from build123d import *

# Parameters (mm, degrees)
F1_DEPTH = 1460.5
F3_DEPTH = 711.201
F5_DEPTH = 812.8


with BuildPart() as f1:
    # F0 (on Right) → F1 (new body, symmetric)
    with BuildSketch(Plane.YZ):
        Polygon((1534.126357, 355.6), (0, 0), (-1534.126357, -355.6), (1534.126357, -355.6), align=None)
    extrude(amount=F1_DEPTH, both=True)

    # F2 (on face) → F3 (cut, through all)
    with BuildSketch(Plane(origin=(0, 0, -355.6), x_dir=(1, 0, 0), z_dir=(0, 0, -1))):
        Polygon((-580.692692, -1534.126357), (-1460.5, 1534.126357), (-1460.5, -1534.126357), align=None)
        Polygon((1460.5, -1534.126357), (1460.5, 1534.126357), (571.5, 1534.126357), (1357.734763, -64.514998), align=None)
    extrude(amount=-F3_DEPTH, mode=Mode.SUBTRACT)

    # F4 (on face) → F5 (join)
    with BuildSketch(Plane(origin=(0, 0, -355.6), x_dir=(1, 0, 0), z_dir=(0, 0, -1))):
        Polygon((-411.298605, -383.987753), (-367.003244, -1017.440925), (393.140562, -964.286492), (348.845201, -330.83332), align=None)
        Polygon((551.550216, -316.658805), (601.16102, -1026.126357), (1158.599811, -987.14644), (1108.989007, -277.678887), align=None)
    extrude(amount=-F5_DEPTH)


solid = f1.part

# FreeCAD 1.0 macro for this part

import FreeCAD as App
import Part
import Sketcher

V = App.Vector
Q = App.Units.Quantity

doc = App.newDocument("Part")
body = doc.addObject("PartDesign::Body", "Body")

# Sketch on YZ plane
sketch1 = body.newObject("Sketcher::SketchObject", "Sketch")
sketch1.AttachmentSupport = (doc.getObject("YZ_Plane"), [""])
sketch1.MapMode = "FlatFace"
sketch1.addGeometry(Part.LineSegment(V(1534, 356, 0), V(-1534, -356, 0)), False)
sketch1.addGeometry(Part.LineSegment(V(-1534, -356, 0), V(1534, -356, 0)), False)
sketch1.addGeometry(Part.LineSegment(V(1534, -356, 0), V(1534, 356, 0)), False)
sketch1.addConstraint(Sketcher.Constraint("Coincident", 0, 2, 1, 1))
sketch1.addConstraint(Sketcher.Constraint("Coincident", 1, 2, 2, 1))
sketch1.addConstraint(Sketcher.Constraint("Coincident", 2, 2, 0, 1))
sketch1.addConstraint(Sketcher.Constraint("Horizontal", 1))
sketch1.addConstraint(Sketcher.Constraint("Vertical", 2))
sketch1.addConstraint(Sketcher.Constraint("Symmetric", 0, 2, 2, 2, -1, 1))
sketch1.addConstraint(Sketcher.Constraint("DistanceY", 2, 1, 2, 2, Q("28 in")))
sketch1.addConstraint(Sketcher.Constraint("Distance", 0, Q("124 in")))
pad1 = body.newObject("PartDesign::Pad", "Pad")
pad1.Profile = sketch1
pad1.Length = Q("115 in")
pad1.Midplane = True

# Sketch on XY plane
sketch2 = body.newObject("Sketcher::SketchObject", "Sketch001")
sketch2.AttachmentSupport = (doc.getObject("XY_Plane"), [""])
sketch2.MapMode = "FlatFace"
sketch2.AttachmentOffset = App.Placement(V(0, 0, -14 * 25.4), App.Rotation())
sketch2.addGeometry(Part.LineSegment(V(-581, 1534, 0), V(-1460, -1534, 0)), False)
sketch2.addGeometry(Part.LineSegment(V(-1460, -1534, 0), V(-1460, 1534, 0)), False)
sketch2.addGeometry(Part.LineSegment(V(-1460, 1534, 0), V(-581, 1534, 0)), False)
sketch2.addGeometry(Part.LineSegment(V(1460, 1534, 0), V(1460, -1534, 0)), False)
sketch2.addGeometry(Part.LineSegment(V(1460, -1534, 0), V(572, -1534, 0)), False)
sketch2.addGeometry(Part.LineSegment(V(572, -1534, 0), V(1358, 65, 0)), False)
sketch2.addGeometry(Part.LineSegment(V(1358, 65, 0), V(1460, 1534, 0)), False)
sketch2.addConstraint(Sketcher.Constraint("Coincident", 0, 2, 1, 1))
sketch2.addConstraint(Sketcher.Constraint("Coincident", 1, 2, 2, 1))
sketch2.addConstraint(Sketcher.Constraint("Coincident", 2, 2, 0, 1))
sketch2.addConstraint(Sketcher.Constraint("Coincident", 3, 2, 4, 1))
sketch2.addConstraint(Sketcher.Constraint("Coincident", 4, 2, 5, 1))
sketch2.addConstraint(Sketcher.Constraint("Coincident", 5, 2, 6, 1))
sketch2.addConstraint(Sketcher.Constraint("Coincident", 6, 2, 3, 1))
sketch2.addConstraint(Sketcher.Constraint("Vertical", 1))
sketch2.addConstraint(Sketcher.Constraint("Horizontal", 2))
sketch2.addConstraint(Sketcher.Constraint("Vertical", 3))
sketch2.addConstraint(Sketcher.Constraint("Horizontal", 4))
sketch2.addConstraint(Sketcher.Constraint("Symmetric", 1, 2, 3, 2, -1, 1))
sketch2.addConstraint(Sketcher.Constraint("Horizontal", 0, 2, 3, 2))
sketch2.addConstraint(Sketcher.Constraint("Horizontal", 2, 2, 6, 2))
sketch2.addConstraint(Sketcher.Constraint("DistanceX", 4, 2, 4, 1, Q("35 in")))
sketch2.addConstraint(Sketcher.Constraint("Distance", 6, Q("58 in")))
sketch2.addConstraint(Sketcher.Constraint("Angle", 0, Q("-106 deg")))
sketch2.addConstraint(Sketcher.Constraint("Angle", 6, Q("86 deg")))
sketch2.addConstraint(Sketcher.Constraint("DistanceX", 0, 2, 3, 2, Q("115 in")))
sketch2.addConstraint(Sketcher.Constraint("DistanceX", 2, 1, 2, 2, 879.807308))
pocket1 = body.newObject("PartDesign::Pocket", "Pocket")
pocket1.Profile = sketch2
pocket1.Type = "ThroughAll"
pocket1.Reversed = True

# Sketch on XY plane
sketch3 = body.newObject("Sketcher::SketchObject", "Sketch002")
sketch3.AttachmentSupport = (doc.getObject("XY_Plane"), [""])
sketch3.MapMode = "FlatFace"
sketch3.AttachmentOffset = App.Placement(V(0, 0, -14 * 25.4), App.Rotation())
sketch3.addGeometry(Part.LineSegment(V(-411, 384, 0), V(-367, 1017, 0)), False)
sketch3.addGeometry(Part.LineSegment(V(-367, 1017, 0), V(393, 964, 0)), False)
sketch3.addGeometry(Part.LineSegment(V(393, 964, 0), V(349, 331, 0)), False)
sketch3.addGeometry(Part.LineSegment(V(349, 331, 0), V(-411, 384, 0)), False)
sketch3.addGeometry(Part.LineSegment(V(552, 317, 0), V(601, 1026, 0)), False)
sketch3.addGeometry(Part.LineSegment(V(601, 1026, 0), V(1159, 987, 0)), False)
sketch3.addGeometry(Part.LineSegment(V(1159, 987, 0), V(1109, 278, 0)), False)
sketch3.addGeometry(Part.LineSegment(V(1109, 278, 0), V(552, 317, 0)), False)
sketch3.addConstraint(Sketcher.Constraint("Coincident", 0, 2, 1, 1))
sketch3.addConstraint(Sketcher.Constraint("Coincident", 1, 2, 2, 1))
sketch3.addConstraint(Sketcher.Constraint("Coincident", 2, 2, 3, 1))
sketch3.addConstraint(Sketcher.Constraint("Coincident", 3, 2, 0, 1))
sketch3.addConstraint(Sketcher.Constraint("Coincident", 4, 2, 5, 1))
sketch3.addConstraint(Sketcher.Constraint("Coincident", 5, 2, 6, 1))
sketch3.addConstraint(Sketcher.Constraint("Coincident", 6, 2, 7, 1))
sketch3.addConstraint(Sketcher.Constraint("Coincident", 7, 2, 4, 1))
sketch3.addConstraint(Sketcher.Constraint("Perpendicular", 0, 1))
sketch3.addConstraint(Sketcher.Constraint("Perpendicular", 1, 2))
sketch3.addConstraint(Sketcher.Constraint("Perpendicular", 2, 3))
sketch3.addConstraint(Sketcher.Constraint("Perpendicular", 3, 4))
sketch3.addConstraint(Sketcher.Constraint("Perpendicular", 4, 5))
sketch3.addConstraint(Sketcher.Constraint("Perpendicular", 5, 6))
sketch3.addConstraint(Sketcher.Constraint("Perpendicular", 6, 7))
sketch3.addConstraint(Sketcher.Constraint("Distance", 0, Q("25 in")))
sketch3.addConstraint(Sketcher.Constraint("Distance", 1, Q("30 in")))
sketch3.addConstraint(Sketcher.Constraint("Distance", 4, Q("28 in")))
sketch3.addConstraint(Sketcher.Constraint("Distance", 5, Q("22 in")))
sketch3.addConstraint(Sketcher.Constraint("Angle", 0, Q("86 deg")))
sketch3.addConstraint(Sketcher.Constraint("DistanceX", -1, 1, 2, 2, 348.845201))
sketch3.addConstraint(Sketcher.Constraint("DistanceY", -1, 1, 1, 2, 964.286492))
sketch3.addConstraint(Sketcher.Constraint("DistanceX", -1, 1, 4, 2, 601.16102))
sketch3.addConstraint(Sketcher.Constraint("DistanceY", -1, 1, 5, 2, 987.14644))
pad2 = body.newObject("PartDesign::Pad", "Pad001")
pad2.Profile = sketch3
pad2.Length = Q("32 in")

doc.recompute()
